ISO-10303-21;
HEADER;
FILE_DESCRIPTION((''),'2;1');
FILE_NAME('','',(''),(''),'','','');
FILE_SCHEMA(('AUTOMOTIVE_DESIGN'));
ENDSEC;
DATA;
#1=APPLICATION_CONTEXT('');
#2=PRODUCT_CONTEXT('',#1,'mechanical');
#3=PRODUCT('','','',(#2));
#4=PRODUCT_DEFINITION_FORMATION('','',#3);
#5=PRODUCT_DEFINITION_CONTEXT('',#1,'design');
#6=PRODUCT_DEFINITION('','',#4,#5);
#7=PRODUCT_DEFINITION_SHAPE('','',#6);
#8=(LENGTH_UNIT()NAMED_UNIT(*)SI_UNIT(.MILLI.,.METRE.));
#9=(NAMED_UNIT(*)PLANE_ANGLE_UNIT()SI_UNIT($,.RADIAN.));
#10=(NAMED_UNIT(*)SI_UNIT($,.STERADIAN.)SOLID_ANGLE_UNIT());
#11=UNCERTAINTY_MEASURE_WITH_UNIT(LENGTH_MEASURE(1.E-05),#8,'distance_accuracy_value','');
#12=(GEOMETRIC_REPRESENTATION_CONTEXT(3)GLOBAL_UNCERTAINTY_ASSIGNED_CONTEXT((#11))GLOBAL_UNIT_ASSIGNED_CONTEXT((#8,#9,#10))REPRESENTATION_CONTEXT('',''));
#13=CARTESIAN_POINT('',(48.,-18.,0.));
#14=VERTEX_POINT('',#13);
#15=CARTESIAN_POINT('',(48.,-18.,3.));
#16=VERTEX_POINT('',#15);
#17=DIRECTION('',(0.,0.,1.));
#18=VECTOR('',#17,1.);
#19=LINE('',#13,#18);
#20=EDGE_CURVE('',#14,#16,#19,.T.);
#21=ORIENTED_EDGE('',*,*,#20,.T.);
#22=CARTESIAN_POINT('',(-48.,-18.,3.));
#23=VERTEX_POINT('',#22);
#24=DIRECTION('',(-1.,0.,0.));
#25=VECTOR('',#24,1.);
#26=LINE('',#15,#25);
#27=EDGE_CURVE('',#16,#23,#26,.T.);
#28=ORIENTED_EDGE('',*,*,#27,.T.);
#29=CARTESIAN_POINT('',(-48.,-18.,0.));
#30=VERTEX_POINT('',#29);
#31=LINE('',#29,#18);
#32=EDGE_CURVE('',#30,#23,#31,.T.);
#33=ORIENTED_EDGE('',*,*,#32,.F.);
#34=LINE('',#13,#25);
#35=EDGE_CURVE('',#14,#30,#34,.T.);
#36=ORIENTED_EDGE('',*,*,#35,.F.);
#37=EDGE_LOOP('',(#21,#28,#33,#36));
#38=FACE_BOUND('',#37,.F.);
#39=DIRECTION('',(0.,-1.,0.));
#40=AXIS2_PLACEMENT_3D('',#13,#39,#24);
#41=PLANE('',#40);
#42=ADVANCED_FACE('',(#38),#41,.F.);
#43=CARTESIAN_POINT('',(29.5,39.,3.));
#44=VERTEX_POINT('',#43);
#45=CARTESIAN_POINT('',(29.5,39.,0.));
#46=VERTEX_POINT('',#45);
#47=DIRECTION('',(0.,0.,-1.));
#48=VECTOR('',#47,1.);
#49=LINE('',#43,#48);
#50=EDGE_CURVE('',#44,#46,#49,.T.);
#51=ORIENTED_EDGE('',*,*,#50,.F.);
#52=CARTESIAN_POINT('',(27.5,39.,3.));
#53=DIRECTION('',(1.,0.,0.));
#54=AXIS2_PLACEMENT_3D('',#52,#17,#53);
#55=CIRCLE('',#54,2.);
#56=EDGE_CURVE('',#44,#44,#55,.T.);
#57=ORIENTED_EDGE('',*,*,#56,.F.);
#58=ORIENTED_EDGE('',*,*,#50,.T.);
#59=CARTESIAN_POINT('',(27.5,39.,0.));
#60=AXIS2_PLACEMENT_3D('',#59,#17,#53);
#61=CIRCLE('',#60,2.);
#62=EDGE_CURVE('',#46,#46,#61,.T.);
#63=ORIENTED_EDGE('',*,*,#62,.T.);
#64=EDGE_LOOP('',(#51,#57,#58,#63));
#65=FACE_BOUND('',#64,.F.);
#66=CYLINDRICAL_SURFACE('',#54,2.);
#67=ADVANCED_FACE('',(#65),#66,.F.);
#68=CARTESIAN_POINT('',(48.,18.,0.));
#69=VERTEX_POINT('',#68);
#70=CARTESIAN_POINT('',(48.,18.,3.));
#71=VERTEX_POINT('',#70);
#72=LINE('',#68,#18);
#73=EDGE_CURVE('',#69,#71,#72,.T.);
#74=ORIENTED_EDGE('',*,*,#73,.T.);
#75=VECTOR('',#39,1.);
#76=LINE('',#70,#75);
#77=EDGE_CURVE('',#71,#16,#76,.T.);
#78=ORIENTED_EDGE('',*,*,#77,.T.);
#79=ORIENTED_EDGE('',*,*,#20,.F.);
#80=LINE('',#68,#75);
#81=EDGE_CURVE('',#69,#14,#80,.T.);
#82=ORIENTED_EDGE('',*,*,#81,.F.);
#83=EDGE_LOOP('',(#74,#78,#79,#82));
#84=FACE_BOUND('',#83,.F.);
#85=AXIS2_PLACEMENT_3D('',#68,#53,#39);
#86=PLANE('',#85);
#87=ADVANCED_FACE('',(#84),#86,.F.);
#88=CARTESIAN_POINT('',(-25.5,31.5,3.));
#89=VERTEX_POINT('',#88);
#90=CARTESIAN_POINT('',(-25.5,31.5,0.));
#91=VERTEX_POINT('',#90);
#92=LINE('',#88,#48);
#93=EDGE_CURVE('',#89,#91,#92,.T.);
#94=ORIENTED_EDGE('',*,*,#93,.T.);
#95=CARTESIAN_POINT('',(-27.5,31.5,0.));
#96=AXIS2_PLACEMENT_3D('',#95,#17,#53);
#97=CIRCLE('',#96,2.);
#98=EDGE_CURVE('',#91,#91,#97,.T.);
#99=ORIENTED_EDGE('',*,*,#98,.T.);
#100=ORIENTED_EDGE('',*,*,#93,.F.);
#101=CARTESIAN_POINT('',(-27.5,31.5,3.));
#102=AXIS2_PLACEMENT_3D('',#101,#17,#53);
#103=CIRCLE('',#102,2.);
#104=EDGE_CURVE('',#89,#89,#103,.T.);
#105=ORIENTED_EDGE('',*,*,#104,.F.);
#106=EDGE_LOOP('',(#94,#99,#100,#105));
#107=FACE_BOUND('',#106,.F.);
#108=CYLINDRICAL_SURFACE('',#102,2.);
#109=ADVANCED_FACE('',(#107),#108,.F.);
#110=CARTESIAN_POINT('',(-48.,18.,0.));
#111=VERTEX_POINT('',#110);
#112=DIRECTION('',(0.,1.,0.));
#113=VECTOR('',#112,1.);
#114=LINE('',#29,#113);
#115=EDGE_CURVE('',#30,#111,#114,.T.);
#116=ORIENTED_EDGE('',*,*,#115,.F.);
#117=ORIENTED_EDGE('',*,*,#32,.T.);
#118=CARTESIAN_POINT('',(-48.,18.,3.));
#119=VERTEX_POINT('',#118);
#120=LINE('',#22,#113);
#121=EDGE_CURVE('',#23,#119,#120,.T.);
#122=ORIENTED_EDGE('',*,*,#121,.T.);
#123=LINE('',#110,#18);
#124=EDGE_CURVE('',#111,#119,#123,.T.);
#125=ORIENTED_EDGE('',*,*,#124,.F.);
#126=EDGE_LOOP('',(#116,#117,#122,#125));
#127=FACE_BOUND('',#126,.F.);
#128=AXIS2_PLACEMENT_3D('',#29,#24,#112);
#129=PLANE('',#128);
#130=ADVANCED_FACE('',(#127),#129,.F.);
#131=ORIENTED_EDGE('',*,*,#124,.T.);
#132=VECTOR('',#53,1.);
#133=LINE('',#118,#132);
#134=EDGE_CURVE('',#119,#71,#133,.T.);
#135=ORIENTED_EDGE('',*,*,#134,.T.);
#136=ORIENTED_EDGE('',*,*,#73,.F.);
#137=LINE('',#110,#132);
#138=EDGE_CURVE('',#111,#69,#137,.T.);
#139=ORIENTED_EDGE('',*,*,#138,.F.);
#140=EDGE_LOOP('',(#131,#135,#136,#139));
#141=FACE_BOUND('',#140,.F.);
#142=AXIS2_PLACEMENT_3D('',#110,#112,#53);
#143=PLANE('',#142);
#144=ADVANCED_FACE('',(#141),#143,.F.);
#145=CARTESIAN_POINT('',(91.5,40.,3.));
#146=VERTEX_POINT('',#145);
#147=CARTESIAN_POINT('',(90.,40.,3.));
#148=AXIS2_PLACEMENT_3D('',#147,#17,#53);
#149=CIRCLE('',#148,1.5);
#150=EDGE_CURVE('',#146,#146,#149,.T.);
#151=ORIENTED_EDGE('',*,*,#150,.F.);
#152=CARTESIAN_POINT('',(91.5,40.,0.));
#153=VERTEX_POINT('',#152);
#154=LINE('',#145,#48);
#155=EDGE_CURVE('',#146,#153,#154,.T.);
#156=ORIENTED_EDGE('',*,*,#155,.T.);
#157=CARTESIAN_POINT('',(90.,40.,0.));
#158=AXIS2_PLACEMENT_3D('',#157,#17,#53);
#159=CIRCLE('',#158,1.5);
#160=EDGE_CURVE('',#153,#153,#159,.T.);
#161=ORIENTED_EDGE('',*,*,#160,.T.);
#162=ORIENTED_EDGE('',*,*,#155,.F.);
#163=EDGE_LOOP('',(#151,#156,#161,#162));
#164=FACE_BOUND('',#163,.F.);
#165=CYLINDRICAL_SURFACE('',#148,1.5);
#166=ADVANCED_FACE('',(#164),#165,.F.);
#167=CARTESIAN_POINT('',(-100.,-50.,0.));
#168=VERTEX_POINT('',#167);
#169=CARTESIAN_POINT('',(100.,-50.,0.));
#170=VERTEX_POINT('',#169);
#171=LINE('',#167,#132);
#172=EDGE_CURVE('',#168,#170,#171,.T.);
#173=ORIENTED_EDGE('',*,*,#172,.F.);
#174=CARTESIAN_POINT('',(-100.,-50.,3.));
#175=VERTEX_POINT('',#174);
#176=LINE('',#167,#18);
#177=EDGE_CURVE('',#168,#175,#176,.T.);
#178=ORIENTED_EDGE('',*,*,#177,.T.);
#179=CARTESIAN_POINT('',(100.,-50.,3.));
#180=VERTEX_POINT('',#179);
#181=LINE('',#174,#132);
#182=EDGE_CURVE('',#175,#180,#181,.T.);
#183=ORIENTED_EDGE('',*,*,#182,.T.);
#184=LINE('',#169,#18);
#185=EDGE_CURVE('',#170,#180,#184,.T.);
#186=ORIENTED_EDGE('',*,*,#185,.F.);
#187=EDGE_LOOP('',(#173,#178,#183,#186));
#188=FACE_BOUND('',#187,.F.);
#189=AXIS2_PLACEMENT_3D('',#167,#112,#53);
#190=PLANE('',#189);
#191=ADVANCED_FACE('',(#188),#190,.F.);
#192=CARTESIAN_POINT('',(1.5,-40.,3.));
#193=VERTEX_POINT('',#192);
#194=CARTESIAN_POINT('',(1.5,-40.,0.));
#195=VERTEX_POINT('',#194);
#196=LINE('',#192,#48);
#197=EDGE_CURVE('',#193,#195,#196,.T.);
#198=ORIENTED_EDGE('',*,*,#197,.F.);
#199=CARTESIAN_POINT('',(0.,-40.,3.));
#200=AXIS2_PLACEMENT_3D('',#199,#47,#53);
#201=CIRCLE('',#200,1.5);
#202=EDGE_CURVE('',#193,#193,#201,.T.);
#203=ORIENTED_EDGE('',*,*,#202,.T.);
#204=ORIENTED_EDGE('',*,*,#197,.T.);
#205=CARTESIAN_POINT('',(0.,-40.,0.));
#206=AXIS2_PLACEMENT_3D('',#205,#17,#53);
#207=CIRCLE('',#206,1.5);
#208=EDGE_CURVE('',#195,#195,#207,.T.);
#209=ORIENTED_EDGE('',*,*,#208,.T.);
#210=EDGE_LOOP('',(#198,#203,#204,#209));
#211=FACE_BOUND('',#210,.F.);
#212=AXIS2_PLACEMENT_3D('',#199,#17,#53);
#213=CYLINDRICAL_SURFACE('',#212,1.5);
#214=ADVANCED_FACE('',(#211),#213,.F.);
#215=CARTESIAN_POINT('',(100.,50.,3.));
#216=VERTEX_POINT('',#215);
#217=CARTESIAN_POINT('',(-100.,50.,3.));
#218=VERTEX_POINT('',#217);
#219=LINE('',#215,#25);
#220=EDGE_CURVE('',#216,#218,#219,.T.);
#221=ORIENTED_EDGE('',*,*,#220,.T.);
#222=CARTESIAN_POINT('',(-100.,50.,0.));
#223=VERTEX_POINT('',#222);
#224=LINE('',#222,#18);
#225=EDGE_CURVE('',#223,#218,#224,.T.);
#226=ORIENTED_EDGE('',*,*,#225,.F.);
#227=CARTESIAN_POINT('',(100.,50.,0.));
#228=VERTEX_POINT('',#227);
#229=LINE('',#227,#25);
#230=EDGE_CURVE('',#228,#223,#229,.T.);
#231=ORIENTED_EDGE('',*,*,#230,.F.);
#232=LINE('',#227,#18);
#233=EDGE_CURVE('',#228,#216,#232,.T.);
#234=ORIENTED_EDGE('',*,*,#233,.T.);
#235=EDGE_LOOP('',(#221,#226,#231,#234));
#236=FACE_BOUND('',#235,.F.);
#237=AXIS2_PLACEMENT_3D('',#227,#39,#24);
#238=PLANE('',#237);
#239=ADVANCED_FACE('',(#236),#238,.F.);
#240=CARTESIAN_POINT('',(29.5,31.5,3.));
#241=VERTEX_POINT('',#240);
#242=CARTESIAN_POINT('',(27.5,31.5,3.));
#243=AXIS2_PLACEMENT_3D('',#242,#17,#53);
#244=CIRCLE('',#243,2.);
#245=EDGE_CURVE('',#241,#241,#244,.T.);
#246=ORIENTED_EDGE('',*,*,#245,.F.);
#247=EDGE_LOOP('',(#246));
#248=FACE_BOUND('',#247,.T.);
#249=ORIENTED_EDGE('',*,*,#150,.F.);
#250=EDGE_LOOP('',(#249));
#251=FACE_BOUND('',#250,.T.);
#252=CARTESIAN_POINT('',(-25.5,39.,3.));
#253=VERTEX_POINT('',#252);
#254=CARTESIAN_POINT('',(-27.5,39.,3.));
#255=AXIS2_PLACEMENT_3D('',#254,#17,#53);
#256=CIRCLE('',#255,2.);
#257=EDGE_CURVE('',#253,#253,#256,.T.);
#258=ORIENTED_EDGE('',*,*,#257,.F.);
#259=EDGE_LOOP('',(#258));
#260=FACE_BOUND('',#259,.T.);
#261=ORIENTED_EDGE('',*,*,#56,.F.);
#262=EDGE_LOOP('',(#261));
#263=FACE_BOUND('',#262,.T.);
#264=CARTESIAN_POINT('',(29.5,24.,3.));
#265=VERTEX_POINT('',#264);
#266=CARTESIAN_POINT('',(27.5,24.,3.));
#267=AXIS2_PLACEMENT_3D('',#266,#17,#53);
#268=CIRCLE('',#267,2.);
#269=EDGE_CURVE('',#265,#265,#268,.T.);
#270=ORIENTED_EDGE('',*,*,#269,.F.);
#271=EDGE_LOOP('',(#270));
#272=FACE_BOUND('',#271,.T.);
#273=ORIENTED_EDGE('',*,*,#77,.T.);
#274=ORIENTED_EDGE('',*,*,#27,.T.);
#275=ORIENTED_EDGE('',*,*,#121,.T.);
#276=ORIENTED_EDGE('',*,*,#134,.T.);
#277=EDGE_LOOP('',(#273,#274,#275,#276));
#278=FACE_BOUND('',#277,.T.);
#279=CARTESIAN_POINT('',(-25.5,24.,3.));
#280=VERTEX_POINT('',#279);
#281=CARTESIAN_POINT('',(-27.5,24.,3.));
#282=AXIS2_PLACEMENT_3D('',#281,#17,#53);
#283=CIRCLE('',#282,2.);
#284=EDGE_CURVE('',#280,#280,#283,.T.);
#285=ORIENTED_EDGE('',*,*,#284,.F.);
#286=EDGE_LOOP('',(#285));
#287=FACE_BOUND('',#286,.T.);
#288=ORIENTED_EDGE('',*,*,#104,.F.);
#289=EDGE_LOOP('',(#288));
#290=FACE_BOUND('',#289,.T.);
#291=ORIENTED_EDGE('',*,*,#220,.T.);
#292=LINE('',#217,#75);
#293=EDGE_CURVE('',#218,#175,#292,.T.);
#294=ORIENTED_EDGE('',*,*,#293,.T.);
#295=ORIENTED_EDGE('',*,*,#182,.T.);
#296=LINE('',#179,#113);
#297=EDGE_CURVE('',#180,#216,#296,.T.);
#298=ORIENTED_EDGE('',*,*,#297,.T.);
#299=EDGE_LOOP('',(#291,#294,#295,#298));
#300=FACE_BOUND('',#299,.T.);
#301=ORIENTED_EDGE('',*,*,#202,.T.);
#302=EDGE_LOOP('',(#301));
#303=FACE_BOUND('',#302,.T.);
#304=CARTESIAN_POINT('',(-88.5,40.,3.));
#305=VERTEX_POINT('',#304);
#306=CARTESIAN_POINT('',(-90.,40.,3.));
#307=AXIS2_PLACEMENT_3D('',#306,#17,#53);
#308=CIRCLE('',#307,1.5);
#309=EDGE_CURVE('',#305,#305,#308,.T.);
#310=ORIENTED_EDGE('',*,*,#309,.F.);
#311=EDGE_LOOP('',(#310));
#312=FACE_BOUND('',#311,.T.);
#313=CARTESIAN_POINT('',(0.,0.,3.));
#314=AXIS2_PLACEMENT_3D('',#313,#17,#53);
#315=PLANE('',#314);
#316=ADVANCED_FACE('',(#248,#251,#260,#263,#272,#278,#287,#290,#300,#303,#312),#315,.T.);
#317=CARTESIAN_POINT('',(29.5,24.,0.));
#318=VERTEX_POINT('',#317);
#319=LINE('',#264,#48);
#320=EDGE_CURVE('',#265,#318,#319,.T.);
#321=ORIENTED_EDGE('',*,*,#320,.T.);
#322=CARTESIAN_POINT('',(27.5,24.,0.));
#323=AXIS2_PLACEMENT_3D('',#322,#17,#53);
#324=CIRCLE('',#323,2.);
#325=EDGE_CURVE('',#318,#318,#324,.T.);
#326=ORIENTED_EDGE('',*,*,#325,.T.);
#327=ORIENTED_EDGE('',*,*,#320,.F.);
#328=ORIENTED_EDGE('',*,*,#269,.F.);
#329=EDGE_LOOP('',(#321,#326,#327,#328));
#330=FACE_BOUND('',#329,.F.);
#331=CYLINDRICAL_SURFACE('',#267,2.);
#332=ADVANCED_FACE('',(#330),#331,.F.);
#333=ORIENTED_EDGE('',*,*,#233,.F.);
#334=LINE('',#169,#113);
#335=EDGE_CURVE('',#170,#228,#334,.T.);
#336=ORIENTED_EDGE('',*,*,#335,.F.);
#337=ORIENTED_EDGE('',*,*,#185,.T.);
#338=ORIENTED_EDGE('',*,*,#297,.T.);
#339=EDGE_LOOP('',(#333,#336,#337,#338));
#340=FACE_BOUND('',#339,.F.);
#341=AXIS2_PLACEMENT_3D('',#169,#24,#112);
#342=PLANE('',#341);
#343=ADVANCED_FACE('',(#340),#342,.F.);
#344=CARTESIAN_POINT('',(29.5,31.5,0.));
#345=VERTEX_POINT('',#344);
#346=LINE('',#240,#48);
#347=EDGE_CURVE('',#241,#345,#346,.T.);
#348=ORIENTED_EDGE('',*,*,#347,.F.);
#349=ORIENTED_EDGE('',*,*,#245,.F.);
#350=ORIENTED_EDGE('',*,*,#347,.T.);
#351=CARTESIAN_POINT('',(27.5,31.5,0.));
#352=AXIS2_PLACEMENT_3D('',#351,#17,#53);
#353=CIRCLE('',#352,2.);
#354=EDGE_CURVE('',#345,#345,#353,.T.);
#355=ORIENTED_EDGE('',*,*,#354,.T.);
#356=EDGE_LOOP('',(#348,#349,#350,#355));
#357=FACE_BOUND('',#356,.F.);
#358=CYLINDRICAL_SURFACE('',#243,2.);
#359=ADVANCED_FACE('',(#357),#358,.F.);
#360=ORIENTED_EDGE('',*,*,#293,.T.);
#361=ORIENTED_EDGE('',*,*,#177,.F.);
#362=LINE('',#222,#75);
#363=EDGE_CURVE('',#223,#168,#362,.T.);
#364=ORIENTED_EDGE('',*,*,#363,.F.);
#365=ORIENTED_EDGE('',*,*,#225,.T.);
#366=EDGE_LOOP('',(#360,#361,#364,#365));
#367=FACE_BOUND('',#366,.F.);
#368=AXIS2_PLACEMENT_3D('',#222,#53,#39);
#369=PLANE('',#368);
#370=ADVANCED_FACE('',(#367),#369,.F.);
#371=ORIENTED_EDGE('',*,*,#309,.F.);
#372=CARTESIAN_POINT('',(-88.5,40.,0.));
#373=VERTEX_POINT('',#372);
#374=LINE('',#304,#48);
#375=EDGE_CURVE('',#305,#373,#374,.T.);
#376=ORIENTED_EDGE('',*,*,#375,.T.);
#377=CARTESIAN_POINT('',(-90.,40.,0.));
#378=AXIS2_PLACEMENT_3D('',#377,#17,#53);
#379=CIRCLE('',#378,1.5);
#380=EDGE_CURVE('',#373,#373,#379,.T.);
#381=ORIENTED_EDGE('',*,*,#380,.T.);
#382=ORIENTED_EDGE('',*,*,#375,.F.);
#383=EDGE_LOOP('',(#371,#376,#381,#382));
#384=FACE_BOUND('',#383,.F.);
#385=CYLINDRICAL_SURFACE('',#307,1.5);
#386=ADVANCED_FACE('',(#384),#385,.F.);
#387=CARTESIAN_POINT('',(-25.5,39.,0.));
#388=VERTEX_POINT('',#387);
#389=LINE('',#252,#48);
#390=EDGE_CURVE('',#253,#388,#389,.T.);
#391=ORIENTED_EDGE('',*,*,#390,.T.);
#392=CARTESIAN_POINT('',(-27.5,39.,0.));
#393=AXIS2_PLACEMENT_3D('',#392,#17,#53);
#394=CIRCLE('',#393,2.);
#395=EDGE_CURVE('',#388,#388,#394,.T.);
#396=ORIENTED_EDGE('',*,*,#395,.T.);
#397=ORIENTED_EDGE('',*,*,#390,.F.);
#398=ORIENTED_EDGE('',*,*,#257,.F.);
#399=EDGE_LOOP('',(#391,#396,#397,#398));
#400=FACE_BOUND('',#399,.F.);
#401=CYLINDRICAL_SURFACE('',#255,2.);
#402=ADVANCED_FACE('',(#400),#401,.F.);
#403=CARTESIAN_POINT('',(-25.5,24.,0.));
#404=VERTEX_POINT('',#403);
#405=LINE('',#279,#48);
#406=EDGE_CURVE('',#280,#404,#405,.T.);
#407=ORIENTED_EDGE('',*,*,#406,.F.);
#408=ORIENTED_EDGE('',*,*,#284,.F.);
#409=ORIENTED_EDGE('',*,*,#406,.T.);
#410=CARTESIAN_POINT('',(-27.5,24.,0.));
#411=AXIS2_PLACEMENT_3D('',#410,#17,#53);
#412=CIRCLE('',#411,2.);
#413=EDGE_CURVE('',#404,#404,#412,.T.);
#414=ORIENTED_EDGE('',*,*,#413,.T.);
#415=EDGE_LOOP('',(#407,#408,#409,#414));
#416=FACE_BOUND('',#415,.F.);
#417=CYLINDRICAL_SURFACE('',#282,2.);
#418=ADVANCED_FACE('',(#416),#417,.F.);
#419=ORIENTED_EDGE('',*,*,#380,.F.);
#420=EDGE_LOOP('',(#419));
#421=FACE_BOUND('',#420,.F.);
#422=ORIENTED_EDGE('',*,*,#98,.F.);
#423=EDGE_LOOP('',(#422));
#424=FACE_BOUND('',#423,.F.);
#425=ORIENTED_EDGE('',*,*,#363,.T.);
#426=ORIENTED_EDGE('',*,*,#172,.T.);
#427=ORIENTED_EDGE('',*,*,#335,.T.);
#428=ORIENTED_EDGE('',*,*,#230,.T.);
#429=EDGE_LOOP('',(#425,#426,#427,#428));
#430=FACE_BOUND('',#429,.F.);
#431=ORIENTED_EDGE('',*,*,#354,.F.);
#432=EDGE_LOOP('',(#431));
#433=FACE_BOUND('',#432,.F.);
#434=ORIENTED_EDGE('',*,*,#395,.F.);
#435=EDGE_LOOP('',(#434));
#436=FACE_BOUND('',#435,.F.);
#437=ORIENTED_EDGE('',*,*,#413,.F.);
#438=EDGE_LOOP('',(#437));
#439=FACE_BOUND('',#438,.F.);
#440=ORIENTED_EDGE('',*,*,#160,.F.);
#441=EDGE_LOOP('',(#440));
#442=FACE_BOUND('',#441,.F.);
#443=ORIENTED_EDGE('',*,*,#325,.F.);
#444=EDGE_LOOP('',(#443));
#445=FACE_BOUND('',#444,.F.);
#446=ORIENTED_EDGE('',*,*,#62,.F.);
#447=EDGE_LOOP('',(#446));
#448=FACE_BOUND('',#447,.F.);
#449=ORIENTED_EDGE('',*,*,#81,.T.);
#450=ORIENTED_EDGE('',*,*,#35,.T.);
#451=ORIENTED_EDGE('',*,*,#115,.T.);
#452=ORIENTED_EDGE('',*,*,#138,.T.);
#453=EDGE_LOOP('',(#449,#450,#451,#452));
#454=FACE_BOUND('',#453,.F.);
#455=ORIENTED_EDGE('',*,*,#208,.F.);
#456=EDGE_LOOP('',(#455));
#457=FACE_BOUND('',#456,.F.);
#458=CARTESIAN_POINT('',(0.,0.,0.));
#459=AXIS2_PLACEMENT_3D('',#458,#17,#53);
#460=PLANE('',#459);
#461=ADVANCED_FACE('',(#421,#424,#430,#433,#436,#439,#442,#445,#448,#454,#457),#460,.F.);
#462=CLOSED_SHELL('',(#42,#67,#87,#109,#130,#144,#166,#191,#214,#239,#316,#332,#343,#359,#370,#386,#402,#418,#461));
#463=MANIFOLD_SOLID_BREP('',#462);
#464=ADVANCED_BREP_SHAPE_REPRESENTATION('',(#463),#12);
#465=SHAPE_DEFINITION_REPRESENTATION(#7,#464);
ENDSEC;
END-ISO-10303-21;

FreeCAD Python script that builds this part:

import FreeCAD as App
import Part
import Sketcher


def add_polygon(sketch, points):
    """Adds a closed chain of lines whose ends are joined by coincident constraints."""
    first, n = sketch.GeometryCount, len(points)
    for a, b in zip(points, points[1:] + points[:1]):
        sketch.addGeometry(Part.LineSegment(App.Vector(*a, 0), App.Vector(*b, 0)), False)
    for i in range(n):
        sketch.addConstraint(Sketcher.Constraint("Coincident", first + i, 2, first + (i + 1) % n, 1))

doc = App.newDocument("Part")
body = doc.addObject("PartDesign::Body", "Body")

sketch1 = body.newObject("Sketcher::SketchObject", "Sketch")
sketch1.AttachmentSupport = (doc.getObject("XY_Plane"), [""])
sketch1.MapMode = "FlatFace"
add_polygon(sketch1, [(-100, 50), (-100, -50), (100, -50), (100, 50)])
add_polygon(sketch1, [(48, 18), (48, -18), (-48, -18), (-48, 18)])
sketch1.addConstraint(Sketcher.Constraint("Vertical", 0))
sketch1.addConstraint(Sketcher.Constraint("Horizontal", 1))
sketch1.addConstraint(Sketcher.Constraint("Vertical", 2))
sketch1.addConstraint(Sketcher.Constraint("Horizontal", 3))
sketch1.addConstraint(Sketcher.Constraint("Vertical", 4))
sketch1.addConstraint(Sketcher.Constraint("Horizontal", 5))
sketch1.addConstraint(Sketcher.Constraint("Vertical", 6))
sketch1.addConstraint(Sketcher.Constraint("Horizontal", 7))
sketch1.addConstraint(Sketcher.Constraint("Symmetric", 0, 2, 2, 2, -1, 1))
sketch1.addConstraint(Sketcher.Constraint("Symmetric", 4, 2, 6, 2, -1, 1))
sketch1.addConstraint(Sketcher.Constraint("DistanceX", 1, 1, 1, 2, 200.0))
sketch1.addConstraint(Sketcher.Constraint("DistanceY", 0, 2, 0, 1, 100.0))
sketch1.addConstraint(Sketcher.Constraint("DistanceX", 5, 2, 5, 1, 96.0))
sketch1.addConstraint(Sketcher.Constraint("DistanceY", 4, 2, 4, 1, 36.0))
pad1 = body.newObject("PartDesign::Pad", "Pad")
pad1.Profile = sketch1
pad1.Length = 3

sketch2 = body.newObject("Sketcher::SketchObject", "Sketch001")
sketch2.AttachmentSupport = (doc.getObject("XY_Plane"), [""])
sketch2.MapMode = "FlatFace"
sketch2.AttachmentOffset = App.Placement(App.Vector(0, 0, 3), App.Rotation())
sketch2.addGeometry(Part.Circle(App.Vector(27.5, 24, 0), App.Vector(0, 0, 1), 2), False)
sketch2.addGeometry(Part.Circle(App.Vector(27.5, 31.5, 0), App.Vector(0, 0, 1), 2), False)
sketch2.addGeometry(Part.Circle(App.Vector(27.5, 39, 0), App.Vector(0, 0, 1), 2), False)
sketch2.addGeometry(Part.Circle(App.Vector(-27.5, 24, 0), App.Vector(0, 0, 1), 2), False)
sketch2.addGeometry(Part.Circle(App.Vector(-27.5, 31.5, 0), App.Vector(0, 0, 1), 2), False)
sketch2.addGeometry(Part.Circle(App.Vector(-27.5, 39, 0), App.Vector(0, 0, 1), 2), False)
sketch2.addConstraint(Sketcher.Constraint("Equal", 0, 1))
sketch2.addConstraint(Sketcher.Constraint("Equal", 1, 2))
sketch2.addConstraint(Sketcher.Constraint("Equal", 2, 3))
sketch2.addConstraint(Sketcher.Constraint("Equal", 3, 4))
sketch2.addConstraint(Sketcher.Constraint("Equal", 4, 5))
sketch2.addConstraint(Sketcher.Constraint("Symmetric", 0, 3, 3, 3, -2))
sketch2.addConstraint(Sketcher.Constraint("Symmetric", 1, 3, 4, 3, -2))
sketch2.addConstraint(Sketcher.Constraint("Symmetric", 2, 3, 5, 3, -2))
sketch2.addConstraint(Sketcher.Constraint("Vertical", 0, 3, 1, 3))
sketch2.addConstraint(Sketcher.Constraint("Vertical", 1, 3, 2, 3))
sketch2.addConstraint(Sketcher.Constraint("Diameter", 0, 4.0))
sketch2.addConstraint(Sketcher.Constraint("DistanceY", 0, 3, 1, 3, 7.5))
sketch2.addConstraint(Sketcher.Constraint("DistanceY", 1, 3, 2, 3, 7.5))
sketch2.addConstraint(Sketcher.Constraint("DistanceY", -1, 1, 0, 3, 24.0))
sketch2.addConstraint(Sketcher.Constraint("DistanceX", 3, 3, 0, 3, 55.0))
pocket1 = body.newObject("PartDesign::Pocket", "Pocket")
pocket1.Profile = sketch2
pocket1.Length = 10

sketch3 = body.newObject("Sketcher::SketchObject", "Sketch002")
sketch3.AttachmentSupport = (doc.getObject("XY_Plane"), [""])
sketch3.MapMode = "FlatFace"
sketch3.AttachmentOffset = App.Placement(App.Vector(0, 0, 3), App.Rotation())
sketch3.addGeometry(Part.Circle(App.Vector(0, -40, 0), App.Vector(0, 0, 1), 1.5), False)
sketch3.addGeometry(Part.Circle(App.Vector(-90, 40, 0), App.Vector(0, 0, 1), 1.5), False)
sketch3.addGeometry(Part.Circle(App.Vector(90, 40, 0), App.Vector(0, 0, 1), 1.5), False)
sketch3.addConstraint(Sketcher.Constraint("Equal", 0, 1))
sketch3.addConstraint(Sketcher.Constraint("Equal", 1, 2))
sketch3.addConstraint(Sketcher.Constraint("Symmetric", 1, 3, 2, 3, -2))
sketch3.addConstraint(Sketcher.Constraint("PointOnObject", 0, 3, -2))
sketch3.addConstraint(Sketcher.Constraint("Diameter", 0, 3.0))
sketch3.addConstraint(Sketcher.Constraint("DistanceY", 0, 3, -1, 1, 40.0))
sketch3.addConstraint(Sketcher.Constraint("DistanceX", 1, 3, -1, 1, 90.0))
sketch3.addConstraint(Sketcher.Constraint("DistanceY", -1, 1, 1, 3, 40.0))
pocket2 = body.newObject("PartDesign::Pocket", "Pocket001")
pocket2.Profile = sketch3
pocket2.Length = 10

doc.recompute()
